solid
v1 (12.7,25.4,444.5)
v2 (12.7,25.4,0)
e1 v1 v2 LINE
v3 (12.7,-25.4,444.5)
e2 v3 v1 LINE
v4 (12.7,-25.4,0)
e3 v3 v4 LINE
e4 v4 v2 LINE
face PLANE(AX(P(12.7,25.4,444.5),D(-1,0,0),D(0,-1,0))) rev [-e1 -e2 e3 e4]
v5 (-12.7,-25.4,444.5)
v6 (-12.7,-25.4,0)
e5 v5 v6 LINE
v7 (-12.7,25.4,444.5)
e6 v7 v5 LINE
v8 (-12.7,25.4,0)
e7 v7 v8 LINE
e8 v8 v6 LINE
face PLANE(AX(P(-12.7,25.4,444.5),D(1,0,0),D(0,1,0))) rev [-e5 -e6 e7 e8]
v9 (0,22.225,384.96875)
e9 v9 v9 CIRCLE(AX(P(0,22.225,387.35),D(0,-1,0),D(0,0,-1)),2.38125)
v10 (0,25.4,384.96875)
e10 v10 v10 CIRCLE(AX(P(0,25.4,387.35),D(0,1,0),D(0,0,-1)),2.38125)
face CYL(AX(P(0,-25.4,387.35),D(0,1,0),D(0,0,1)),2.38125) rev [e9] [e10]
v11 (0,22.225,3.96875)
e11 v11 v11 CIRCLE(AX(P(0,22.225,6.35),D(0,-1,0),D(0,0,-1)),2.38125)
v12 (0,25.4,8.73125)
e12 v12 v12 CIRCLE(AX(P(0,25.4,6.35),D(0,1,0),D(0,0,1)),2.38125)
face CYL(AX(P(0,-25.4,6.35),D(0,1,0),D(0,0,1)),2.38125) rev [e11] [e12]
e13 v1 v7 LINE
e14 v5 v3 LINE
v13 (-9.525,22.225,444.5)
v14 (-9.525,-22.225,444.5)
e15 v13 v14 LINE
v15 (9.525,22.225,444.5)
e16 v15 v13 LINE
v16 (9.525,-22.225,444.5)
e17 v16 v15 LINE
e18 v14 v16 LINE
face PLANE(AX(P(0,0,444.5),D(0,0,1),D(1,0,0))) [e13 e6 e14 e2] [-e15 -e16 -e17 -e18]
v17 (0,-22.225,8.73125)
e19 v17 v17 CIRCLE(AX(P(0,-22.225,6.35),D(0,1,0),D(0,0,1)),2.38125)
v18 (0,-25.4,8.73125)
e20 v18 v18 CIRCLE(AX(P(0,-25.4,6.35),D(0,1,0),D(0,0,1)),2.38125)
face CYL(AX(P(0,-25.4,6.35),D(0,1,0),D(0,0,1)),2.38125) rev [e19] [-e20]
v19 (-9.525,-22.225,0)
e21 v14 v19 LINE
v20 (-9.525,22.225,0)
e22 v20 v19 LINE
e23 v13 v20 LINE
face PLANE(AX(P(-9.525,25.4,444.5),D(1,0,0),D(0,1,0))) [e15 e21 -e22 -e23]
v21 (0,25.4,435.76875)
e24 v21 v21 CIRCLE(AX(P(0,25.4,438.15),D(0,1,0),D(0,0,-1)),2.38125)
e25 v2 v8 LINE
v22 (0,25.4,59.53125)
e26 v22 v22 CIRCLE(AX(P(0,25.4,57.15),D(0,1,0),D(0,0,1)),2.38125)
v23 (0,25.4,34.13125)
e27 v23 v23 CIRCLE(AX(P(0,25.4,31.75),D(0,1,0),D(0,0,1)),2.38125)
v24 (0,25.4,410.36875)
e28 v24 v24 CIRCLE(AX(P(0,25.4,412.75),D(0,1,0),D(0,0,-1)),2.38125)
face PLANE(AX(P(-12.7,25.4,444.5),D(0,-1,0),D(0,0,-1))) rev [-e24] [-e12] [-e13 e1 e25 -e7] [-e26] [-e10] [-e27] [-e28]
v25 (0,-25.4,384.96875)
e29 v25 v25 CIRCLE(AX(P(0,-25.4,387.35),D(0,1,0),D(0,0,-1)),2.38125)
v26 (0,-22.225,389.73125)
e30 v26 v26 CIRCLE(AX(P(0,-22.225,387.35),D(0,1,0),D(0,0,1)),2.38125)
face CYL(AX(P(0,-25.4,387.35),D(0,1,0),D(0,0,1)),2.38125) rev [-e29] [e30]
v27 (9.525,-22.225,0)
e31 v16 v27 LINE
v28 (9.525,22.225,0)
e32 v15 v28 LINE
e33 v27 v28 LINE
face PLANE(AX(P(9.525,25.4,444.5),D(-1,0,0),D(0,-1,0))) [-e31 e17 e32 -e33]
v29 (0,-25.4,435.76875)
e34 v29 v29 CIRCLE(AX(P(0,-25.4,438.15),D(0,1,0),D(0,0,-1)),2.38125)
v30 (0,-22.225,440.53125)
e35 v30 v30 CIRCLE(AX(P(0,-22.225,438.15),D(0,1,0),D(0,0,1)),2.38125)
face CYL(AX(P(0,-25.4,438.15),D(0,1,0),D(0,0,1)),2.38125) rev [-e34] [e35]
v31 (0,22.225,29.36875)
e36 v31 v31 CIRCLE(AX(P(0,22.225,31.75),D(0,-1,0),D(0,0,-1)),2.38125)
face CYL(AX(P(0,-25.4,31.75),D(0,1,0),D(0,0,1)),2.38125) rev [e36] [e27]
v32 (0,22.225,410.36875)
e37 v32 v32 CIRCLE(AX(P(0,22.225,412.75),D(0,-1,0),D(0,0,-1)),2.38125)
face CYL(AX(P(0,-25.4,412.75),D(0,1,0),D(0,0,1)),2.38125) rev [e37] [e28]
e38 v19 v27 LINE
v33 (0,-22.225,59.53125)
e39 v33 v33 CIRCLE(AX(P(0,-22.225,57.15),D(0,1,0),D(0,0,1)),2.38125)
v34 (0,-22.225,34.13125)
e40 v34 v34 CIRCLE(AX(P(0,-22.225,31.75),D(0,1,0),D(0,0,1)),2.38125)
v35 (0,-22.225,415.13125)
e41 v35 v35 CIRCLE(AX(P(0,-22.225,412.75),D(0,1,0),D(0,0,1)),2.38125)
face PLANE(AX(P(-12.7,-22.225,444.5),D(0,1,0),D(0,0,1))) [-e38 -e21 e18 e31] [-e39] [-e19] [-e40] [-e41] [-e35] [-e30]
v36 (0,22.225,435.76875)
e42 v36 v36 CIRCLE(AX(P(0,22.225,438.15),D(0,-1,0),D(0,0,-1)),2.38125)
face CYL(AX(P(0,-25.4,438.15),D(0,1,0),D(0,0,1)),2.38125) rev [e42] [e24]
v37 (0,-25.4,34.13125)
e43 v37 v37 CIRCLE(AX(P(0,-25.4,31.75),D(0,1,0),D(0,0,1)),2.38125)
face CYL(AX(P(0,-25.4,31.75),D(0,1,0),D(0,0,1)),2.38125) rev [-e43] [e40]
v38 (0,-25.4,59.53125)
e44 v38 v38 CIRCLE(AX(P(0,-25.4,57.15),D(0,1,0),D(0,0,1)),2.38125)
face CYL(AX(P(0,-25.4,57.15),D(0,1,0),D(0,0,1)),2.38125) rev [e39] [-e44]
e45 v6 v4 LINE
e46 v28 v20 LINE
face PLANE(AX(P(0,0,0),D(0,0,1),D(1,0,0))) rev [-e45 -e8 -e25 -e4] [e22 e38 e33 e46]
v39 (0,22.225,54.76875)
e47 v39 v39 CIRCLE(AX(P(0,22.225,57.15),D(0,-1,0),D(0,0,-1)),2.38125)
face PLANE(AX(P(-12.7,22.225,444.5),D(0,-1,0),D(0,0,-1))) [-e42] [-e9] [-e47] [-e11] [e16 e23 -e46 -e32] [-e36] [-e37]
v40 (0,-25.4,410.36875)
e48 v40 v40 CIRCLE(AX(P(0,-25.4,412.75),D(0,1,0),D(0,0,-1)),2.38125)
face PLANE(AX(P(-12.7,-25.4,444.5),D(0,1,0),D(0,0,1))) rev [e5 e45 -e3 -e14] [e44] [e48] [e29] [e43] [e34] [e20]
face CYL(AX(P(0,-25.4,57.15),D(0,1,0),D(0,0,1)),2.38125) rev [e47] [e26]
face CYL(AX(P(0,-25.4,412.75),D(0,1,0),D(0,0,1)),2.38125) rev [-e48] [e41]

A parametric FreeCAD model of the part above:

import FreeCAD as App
import Part
import Sketcher

V = App.Vector
Q = App.Units.Quantity


def faces_at(feature, points):
    """Names of the faces that lie closest to the given points."""
    faces = feature.Shape.Faces
    near = lambda p: min(range(len(faces)), key=lambda i: faces[i].distToShape(Part.Vertex(*p))[0])
    return sorted({f"Face{near(p) + 1}" for p in points})


def add_polygon(sketch, points):
    """Adds a closed chain of lines whose ends are joined by coincident constraints."""
    first, n = sketch.GeometryCount, len(points)
    for a, b in zip(points, points[1:] + points[:1]):
        sketch.addGeometry(Part.LineSegment(App.Vector(*a, 0), App.Vector(*b, 0)), False)
    for i in range(n):
        sketch.addConstraint(Sketcher.Constraint("Coincident", first + i, 2, first + (i + 1) % n, 1))

doc = App.newDocument("Part")
body = doc.addObject("PartDesign::Body", "Body")

sketch1 = doc.addObject("Sketcher::SketchObject", "Sketch")
body.addObject(sketch1)
sketch1.AttachmentSupport = (doc.XY_Plane, [""])
sketch1.MapMode = "FlatFace"
add_polygon(sketch1, [(-13, 25), (-13, -25), (13, -25), (13, 25)])
sketch1.addConstraint(Sketcher.Constraint("Vertical", 0))
sketch1.addConstraint(Sketcher.Constraint("Horizontal", 1))
sketch1.addConstraint(Sketcher.Constraint("Vertical", 2))
sketch1.addConstraint(Sketcher.Constraint("Horizontal", 3))
sketch1.addConstraint(Sketcher.Constraint("Symmetric", 0, 2, 2, 2, -1, 1))
sketch1.addConstraint(Sketcher.Constraint("DistanceX", 1, 1, 1, 2, Q("1 in")))
sketch1.addConstraint(Sketcher.Constraint("DistanceY", 0, 2, 0, 1, Q("2 in")))
pad1 = doc.addObject("PartDesign::Pad", "Pad")
body.addObject(pad1)
pad1.Profile = sketch1
pad1.Length = Q("17.5 in")
doc.recompute()

thickness = doc.addObject("PartDesign::Thickness", "Thickness")
body.addObject(thickness)
thickness.Base = (pad1, faces_at(pad1, [(0, 0, 444.5), (0, 0, 0)]))
thickness.Value = Q("0.125 in")
thickness.Reversed = True
thickness.Join = "Intersection"

sketch2 = doc.addObject("Sketcher::SketchObject", "Sketch001")
body.addObject(sketch2)
sketch2.AttachmentSupport = (doc.XZ_Plane, [""])
sketch2.MapMode = "FlatFace"
sketch2.AttachmentOffset = App.Placement(V(0, 0, -1 * 25.4), App.Rotation())
sketch2.addGeometry(Part.Circle(V(0, 6.3, 0), V(0, 0, 1), 2.4), False)
sketch2.addGeometry(Part.Circle(V(0, 31.8, 0), V(0, 0, 1), 2.4), False)
sketch2.addGeometry(Part.Circle(V(0, 57.1, 0), V(0, 0, 1), 2.4), False)
sketch2.addGeometry(Part.Circle(V(0, 387.4, 0), V(0, 0, 1), 2.4), False)
sketch2.addGeometry(Part.Circle(V(0, 412.8, 0), V(0, 0, 1), 2.4), False)
sketch2.addGeometry(Part.Circle(V(0, 438.1, 0), V(0, 0, 1), 2.4), False)
sketch2.addConstraint(Sketcher.Constraint("Equal", 0, 1))
sketch2.addConstraint(Sketcher.Constraint("Equal", 1, 2))
sketch2.addConstraint(Sketcher.Constraint("Equal", 2, 3))
sketch2.addConstraint(Sketcher.Constraint("Equal", 3, 4))
sketch2.addConstraint(Sketcher.Constraint("Equal", 4, 5))
sketch2.addConstraint(Sketcher.Constraint("PointOnObject", 0, 3, -2))
sketch2.addConstraint(Sketcher.Constraint("PointOnObject", 1, 3, -2))
sketch2.addConstraint(Sketcher.Constraint("PointOnObject", 2, 3, -2))
sketch2.addConstraint(Sketcher.Constraint("PointOnObject", 3, 3, -2))
sketch2.addConstraint(Sketcher.Constraint("PointOnObject", 4, 3, -2))
sketch2.addConstraint(Sketcher.Constraint("PointOnObject", 5, 3, -2))
sketch2.addConstraint(Sketcher.Constraint("Diameter", 0, Q("0.1875 in")))
sketch2.addConstraint(Sketcher.Constraint("DistanceY", 0, 3, 1, 3, Q("1 in")))
sketch2.addConstraint(Sketcher.Constraint("DistanceY", 1, 3, 2, 3, Q("1 in")))
sketch2.addConstraint(Sketcher.Constraint("DistanceY", 2, 3, 3, 3, Q("13 in")))
sketch2.addConstraint(Sketcher.Constraint("DistanceY", 3, 3, 4, 3, Q("1 in")))
sketch2.addConstraint(Sketcher.Constraint("DistanceY", 4, 3, 5, 3, Q("1 in")))
sketch2.addConstraint(Sketcher.Constraint("DistanceY", -1, 1, 0, 3, Q("0.25 in")))
pocket1 = doc.addObject("PartDesign::Pocket", "Pocket")
body.addObject(pocket1)
pocket1.Profile = sketch2
pocket1.Type = "ThroughAll"
pocket1.Reversed = True

doc.recompute()
